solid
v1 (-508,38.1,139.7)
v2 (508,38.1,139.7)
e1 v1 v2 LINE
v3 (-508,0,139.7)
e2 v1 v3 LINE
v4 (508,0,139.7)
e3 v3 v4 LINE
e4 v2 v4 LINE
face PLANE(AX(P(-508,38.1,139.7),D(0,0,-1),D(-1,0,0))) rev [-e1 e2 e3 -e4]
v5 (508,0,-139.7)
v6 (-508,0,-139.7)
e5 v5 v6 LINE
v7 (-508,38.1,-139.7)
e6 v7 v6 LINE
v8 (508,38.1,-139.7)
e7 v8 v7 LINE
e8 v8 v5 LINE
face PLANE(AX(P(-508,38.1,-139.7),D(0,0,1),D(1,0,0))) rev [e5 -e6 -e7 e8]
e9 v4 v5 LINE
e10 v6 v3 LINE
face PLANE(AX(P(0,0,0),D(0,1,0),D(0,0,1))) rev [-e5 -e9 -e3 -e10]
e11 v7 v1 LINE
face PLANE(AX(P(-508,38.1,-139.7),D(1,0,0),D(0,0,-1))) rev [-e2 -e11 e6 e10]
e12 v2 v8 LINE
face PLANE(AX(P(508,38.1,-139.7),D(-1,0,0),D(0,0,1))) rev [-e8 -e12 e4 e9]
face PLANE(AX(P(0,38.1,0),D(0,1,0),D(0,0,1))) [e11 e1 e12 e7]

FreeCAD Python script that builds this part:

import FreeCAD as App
import Part
import Sketcher
from FreeCAD import Vector
Q = App.Units.Quantity


def add_polygon(sketch, points):
    """Adds a closed chain of lines whose ends are joined by coincident constraints."""
    first, n = sketch.GeometryCount, len(points)
    for a, b in zip(points, points[1:] + points[:1]):
        sketch.addGeometry(Part.LineSegment(App.Vector(*a, 0), App.Vector(*b, 0)), False)
    for i in range(n):
        sketch.addConstraint(Sketcher.Constraint("Coincident", first + i, 2, first + (i + 1) % n, 1))

doc = App.newDocument("Part")
params = doc.addObject("Spreadsheet::Sheet", "Params")
for row, (alias, value) in enumerate([
    ("sketch1_width", "40 in"),
    ("sketch1_height", "11 in"),
    ("pad1_length", "1.5 in"),
], start=1):
    params.set(f"A{row}", alias)
    params.set(f"B{row}", "=" + value)
    params.setAlias(f"B{row}", alias)

body = doc.addObject("PartDesign::Body", "Body")

sketch1 = body.newObject("Sketcher::SketchObject", "Sketch")
sketch1.AttachmentSupport = (doc.getObject("XZ_Plane"), [""])
sketch1.MapMode = "FlatFace"
add_polygon(sketch1, [(-508, -140), (-508, 140), (508, 140), (508, -140)])
sketch1.addConstraint(Sketcher.Constraint("Vertical", 0))
sketch1.addConstraint(Sketcher.Constraint("Horizontal", 1))
sketch1.addConstraint(Sketcher.Constraint("Vertical", 2))
sketch1.addConstraint(Sketcher.Constraint("Horizontal", 3))
sketch1.addConstraint(Sketcher.Constraint("Symmetric", 0, 2, 2, 2, -1, 1))
sketch1.addConstraint(Sketcher.Constraint("DistanceX", 1, 1, 1, 2, Q("40 in")))
sketch1.addConstraint(Sketcher.Constraint("DistanceY", 0, 1, 0, 2, Q("11 in")))
sketch1.setExpression("Constraints[9]", "Params.sketch1_width")
sketch1.setExpression("Constraints[10]", "Params.sketch1_height")
pad1 = body.newObject("PartDesign::Pad", "Pad")
pad1.Profile = sketch1
pad1.setExpression("Length", "Params.pad1_length")
pad1.Reversed = True

doc.recompute()
